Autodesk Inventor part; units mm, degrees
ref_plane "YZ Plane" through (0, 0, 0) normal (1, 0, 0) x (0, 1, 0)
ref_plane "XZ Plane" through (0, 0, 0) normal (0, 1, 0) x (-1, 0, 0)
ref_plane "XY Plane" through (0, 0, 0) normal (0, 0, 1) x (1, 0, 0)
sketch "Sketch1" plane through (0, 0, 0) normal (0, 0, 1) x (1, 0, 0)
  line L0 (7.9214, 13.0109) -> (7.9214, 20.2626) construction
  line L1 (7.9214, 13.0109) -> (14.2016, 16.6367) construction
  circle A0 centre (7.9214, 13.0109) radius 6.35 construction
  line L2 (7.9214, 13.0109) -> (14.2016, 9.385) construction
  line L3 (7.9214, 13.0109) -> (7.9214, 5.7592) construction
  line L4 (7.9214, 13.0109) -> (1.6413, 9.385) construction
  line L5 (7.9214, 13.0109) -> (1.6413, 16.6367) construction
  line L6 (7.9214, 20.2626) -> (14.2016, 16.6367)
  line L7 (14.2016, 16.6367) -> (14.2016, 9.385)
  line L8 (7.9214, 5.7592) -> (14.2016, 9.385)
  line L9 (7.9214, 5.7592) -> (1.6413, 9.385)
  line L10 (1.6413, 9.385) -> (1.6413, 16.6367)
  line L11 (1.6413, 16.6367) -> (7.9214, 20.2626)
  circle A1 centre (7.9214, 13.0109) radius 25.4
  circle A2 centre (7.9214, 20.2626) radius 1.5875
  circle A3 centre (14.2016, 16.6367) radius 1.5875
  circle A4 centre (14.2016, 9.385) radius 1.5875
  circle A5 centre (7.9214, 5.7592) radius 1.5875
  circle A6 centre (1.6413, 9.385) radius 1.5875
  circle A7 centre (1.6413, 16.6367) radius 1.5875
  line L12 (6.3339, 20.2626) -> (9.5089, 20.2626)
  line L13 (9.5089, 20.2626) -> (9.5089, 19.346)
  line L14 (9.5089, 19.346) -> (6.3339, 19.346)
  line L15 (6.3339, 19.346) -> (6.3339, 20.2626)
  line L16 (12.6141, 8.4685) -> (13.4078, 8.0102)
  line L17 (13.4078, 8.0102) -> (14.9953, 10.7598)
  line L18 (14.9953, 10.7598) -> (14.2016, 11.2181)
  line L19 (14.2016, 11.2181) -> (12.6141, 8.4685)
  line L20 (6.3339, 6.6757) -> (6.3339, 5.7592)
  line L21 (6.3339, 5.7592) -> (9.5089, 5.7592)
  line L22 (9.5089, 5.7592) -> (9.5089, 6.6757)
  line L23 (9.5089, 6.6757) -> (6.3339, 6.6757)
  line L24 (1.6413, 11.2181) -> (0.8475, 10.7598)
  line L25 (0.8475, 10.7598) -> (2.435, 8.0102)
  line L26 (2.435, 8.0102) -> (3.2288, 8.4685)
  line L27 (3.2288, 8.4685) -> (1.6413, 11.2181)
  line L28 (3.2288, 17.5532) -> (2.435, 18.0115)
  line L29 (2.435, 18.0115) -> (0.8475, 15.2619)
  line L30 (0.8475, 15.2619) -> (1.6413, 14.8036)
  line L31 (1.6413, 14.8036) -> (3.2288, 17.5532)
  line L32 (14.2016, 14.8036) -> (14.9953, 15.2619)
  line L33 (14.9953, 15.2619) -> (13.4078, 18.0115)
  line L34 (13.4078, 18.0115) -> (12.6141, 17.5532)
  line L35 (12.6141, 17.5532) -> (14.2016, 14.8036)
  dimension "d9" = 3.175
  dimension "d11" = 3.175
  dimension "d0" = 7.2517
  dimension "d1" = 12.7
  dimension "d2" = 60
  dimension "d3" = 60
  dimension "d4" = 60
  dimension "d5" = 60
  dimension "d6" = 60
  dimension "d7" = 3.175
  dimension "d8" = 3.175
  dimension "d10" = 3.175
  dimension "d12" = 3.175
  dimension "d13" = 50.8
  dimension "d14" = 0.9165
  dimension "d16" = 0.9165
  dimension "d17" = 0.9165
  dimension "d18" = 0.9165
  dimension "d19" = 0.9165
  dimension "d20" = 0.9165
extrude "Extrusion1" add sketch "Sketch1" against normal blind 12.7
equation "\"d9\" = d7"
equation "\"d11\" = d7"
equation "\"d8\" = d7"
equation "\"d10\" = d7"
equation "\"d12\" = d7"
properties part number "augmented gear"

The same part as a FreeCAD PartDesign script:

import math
import FreeCAD as App
import Part
import Sketcher
from FreeCAD import Vector
Q = App.Units.Quantity

doc = App.newDocument("Part")
body = doc.addObject("PartDesign::Body", "Body")

# Sketch on XY plane
sketch1 = doc.addObject("Sketcher::SketchObject", "Sketch")
body.addObject(sketch1)
sketch1.AttachmentSupport = (doc.XY_Plane, [""])
sketch1.MapMode = "FlatFace"
sketch1.addGeometry([
    Part.Circle(Vector(7.9214, 13.0109, 0), Vector(0, 0, 1), 25.4),  # 0
    Part.LineSegment(Vector(9.5089, 20.2626, 0), Vector(9.5089, 19.346, 0)),  # 1
    Part.LineSegment(Vector(9.508922, 19.346038, 0), Vector(12.614122, 17.553237, 0)),  # 2
    Part.LineSegment(Vector(12.6141, 17.5532, 0), Vector(13.4078, 18.0115, 0)),  # 3
    Part.ArcOfCircle(Part.Circle(Vector(14.2016, 16.6367, 0), Vector(0, 0, 1), 1.5875), math.radians(-60.001286), math.radians(120.001839)),  # 4
    Part.LineSegment(Vector(14.9953, 15.2619, 0), Vector(14.2016, 14.8036, 0)),  # 5
    Part.LineSegment(Vector(14.2016, 14.8036, 0), Vector(14.2016, 11.2181, 0)),  # 6
    Part.LineSegment(Vector(14.2016, 11.2181, 0), Vector(14.9953, 10.7598, 0)),  # 7
    Part.ArcOfCircle(Part.Circle(Vector(14.2016, 9.385, 0), Vector(0, 0, 1), 1.5875), math.radians(-120.001839), math.radians(60.001286)),  # 8
    Part.LineSegment(Vector(13.4078, 8.0102, 0), Vector(12.6141, 8.4685, 0)),  # 9
    Part.LineSegment(Vector(12.614111, 8.468482, 0), Vector(9.508889, 6.675718, 0)),  # 10
    Part.LineSegment(Vector(9.5089, 6.6757, 0), Vector(9.5089, 5.7592, 0)),  # 11
    Part.ArcOfCircle(Part.Circle(Vector(7.9214, 5.7592, 0), Vector(0, 0, 1), 1.5875), math.radians(180), math.radians(360)),  # 12
    Part.LineSegment(Vector(6.3339, 5.7592, 0), Vector(6.3339, 6.6757, 0)),  # 13
    Part.LineSegment(Vector(6.333917, 6.675729, 0), Vector(3.228783, 8.468471, 0)),  # 14
    Part.LineSegment(Vector(3.2288, 8.4685, 0), Vector(2.435, 8.0102, 0)),  # 15
    Part.ArcOfCircle(Part.Circle(Vector(1.6413, 9.385, 0), Vector(0, 0, 1), 1.5875), math.radians(120.001839), math.radians(299.998714)),  # 16
    Part.LineSegment(Vector(0.8475, 10.7598, 0), Vector(1.6413, 11.2181, 0)),  # 17
    Part.LineSegment(Vector(1.6413, 11.2181, 0), Vector(1.6413, 14.8036, 0)),  # 18
    Part.LineSegment(Vector(1.6413, 14.8036, 0), Vector(0.8475, 15.2619, 0)),  # 19
    Part.ArcOfCircle(Part.Circle(Vector(1.6413, 16.6367, 0), Vector(0, 0, 1), 1.5875), math.radians(60.001286), math.radians(239.998161)),  # 20
    Part.LineSegment(Vector(2.435, 18.0115, 0), Vector(3.2288, 17.5532, 0)),  # 21
    Part.LineSegment(Vector(3.228772, 17.553248, 0), Vector(6.333885, 19.346027, 0)),  # 22
    Part.LineSegment(Vector(6.3339, 19.346, 0), Vector(6.3339, 20.2626, 0)),  # 23
    Part.ArcOfCircle(Part.Circle(Vector(7.9214, 20.2626, 0), Vector(0, 0, 1), 1.5875), math.radians(0), math.radians(180)),  # 24
], False)
sketch1.addConstraint([
    Sketcher.Constraint("Coincident", 1, 2, 2, 1),
    Sketcher.Constraint("Coincident", 2, 2, 3, 1),
    Sketcher.Constraint("Tangent", 3, 2, 4, 2),
    Sketcher.Constraint("Tangent", 4, 1, 5, 1),
    Sketcher.Constraint("Coincident", 5, 2, 6, 1),
    Sketcher.Constraint("Coincident", 6, 2, 7, 1),
    Sketcher.Constraint("Tangent", 7, 2, 8, 2),
    Sketcher.Constraint("Tangent", 8, 1, 9, 1),
    Sketcher.Constraint("Coincident", 9, 2, 10, 1),
    Sketcher.Constraint("Coincident", 10, 2, 11, 1),
    Sketcher.Constraint("Tangent", 11, 2, 12, 2),
    Sketcher.Constraint("Tangent", 12, 1, 13, 1),
    Sketcher.Constraint("Coincident", 13, 2, 14, 1),
    Sketcher.Constraint("Coincident", 14, 2, 15, 1),
    Sketcher.Constraint("Tangent", 15, 2, 16, 2),
    Sketcher.Constraint("Tangent", 16, 1, 17, 1),
    Sketcher.Constraint("Coincident", 17, 2, 18, 1),
    Sketcher.Constraint("Coincident", 18, 2, 19, 1),
    Sketcher.Constraint("Tangent", 19, 2, 20, 2),
    Sketcher.Constraint("Tangent", 20, 1, 21, 1),
    Sketcher.Constraint("Coincident", 21, 2, 22, 1),
    Sketcher.Constraint("Coincident", 22, 2, 23, 1),
    Sketcher.Constraint("Tangent", 23, 2, 24, 2),
    Sketcher.Constraint("Tangent", 24, 1, 1, 1),
    Sketcher.Constraint("Vertical", 1),
    Sketcher.Constraint("Vertical", 6),
    Sketcher.Constraint("Vertical", 11),
    Sketcher.Constraint("Vertical", 13),
    Sketcher.Constraint("Vertical", 18),
    Sketcher.Constraint("Vertical", 23),
    Sketcher.Constraint("Equal", 4, 8),
    Sketcher.Constraint("Equal", 8, 12),
    Sketcher.Constraint("Equal", 12, 16),
    Sketcher.Constraint("Equal", 16, 20),
    Sketcher.Constraint("Equal", 20, 24),
    Sketcher.Constraint("Parallel", 3, 5),
    Sketcher.Constraint("Parallel", 2, 7),
    Sketcher.Constraint("Parallel", 7, 9),
    Sketcher.Constraint("Parallel", 5, 10),
    Sketcher.Constraint("Parallel", 9, 14),
    Sketcher.Constraint("Parallel", 10, 15),
    Sketcher.Constraint("Parallel", 15, 17),
    Sketcher.Constraint("Parallel", 14, 19),
    Sketcher.Constraint("Parallel", 19, 21),
    Sketcher.Constraint("Parallel", 17, 22),
    Sketcher.Constraint("Horizontal", 8, 3, 16, 3),
    Sketcher.Constraint("Horizontal", 4, 3, 20, 3),
    Sketcher.Constraint("Horizontal", 10, 2, 13, 2),
    Sketcher.Constraint("Horizontal", 9, 2, 14, 2),
    Sketcher.Constraint("Horizontal", 8, 1, 15, 2),
    Sketcher.Constraint("Horizontal", 6, 2, 17, 2),
    Sketcher.Constraint("Horizontal", 5, 2, 18, 2),
    Sketcher.Constraint("Horizontal", 2, 2, 21, 2),
    Sketcher.Constraint("Horizontal", 1, 2, 22, 2),
    Sketcher.Constraint("Vertical", 4, 3, 8, 3),
    Sketcher.Constraint("Vertical", 0, 3, 12, 3),
    Sketcher.Constraint("Vertical", 8, 3, 5, 2),
    Sketcher.Constraint("Vertical", 2, 2, 9, 2),
    Sketcher.Constraint("Equal", 1, 11),
    Sketcher.Constraint("Equal", 3, 5),
    Sketcher.Constraint("Diameter", 0, Q("2 in")),
    Sketcher.Constraint("Radius", 4, Q("0.0625 in")),
    Sketcher.Constraint("Angle", 2, Q("-30.0002 deg")),
    Sketcher.Constraint("DistanceY", 1, 2, 1, 1, Q("0.9166 mm")),
    Sketcher.Constraint("DistanceY", 8, 3, 4, 3, Q("0.2855 in")),
    Sketcher.Constraint("DistanceY", 12, 3, 0, 3, Q("0.2855 in")),
    Sketcher.Constraint("DistanceY", 0, 3, 24, 3, Q("0.2855 in")),
    Sketcher.Constraint("DistanceY", -1, 1, 4, 3, Q("0.655 in")),
    Sketcher.Constraint("DistanceX", -1, 1, 0, 3, Q("7.9214 mm")),
])
pad1 = doc.addObject("PartDesign::Pad", "Pad")
body.addObject(pad1)
pad1.Profile = sketch1
pad1.Length = Q("0.5 in")
pad1.Reversed = True

doc.recompute()
